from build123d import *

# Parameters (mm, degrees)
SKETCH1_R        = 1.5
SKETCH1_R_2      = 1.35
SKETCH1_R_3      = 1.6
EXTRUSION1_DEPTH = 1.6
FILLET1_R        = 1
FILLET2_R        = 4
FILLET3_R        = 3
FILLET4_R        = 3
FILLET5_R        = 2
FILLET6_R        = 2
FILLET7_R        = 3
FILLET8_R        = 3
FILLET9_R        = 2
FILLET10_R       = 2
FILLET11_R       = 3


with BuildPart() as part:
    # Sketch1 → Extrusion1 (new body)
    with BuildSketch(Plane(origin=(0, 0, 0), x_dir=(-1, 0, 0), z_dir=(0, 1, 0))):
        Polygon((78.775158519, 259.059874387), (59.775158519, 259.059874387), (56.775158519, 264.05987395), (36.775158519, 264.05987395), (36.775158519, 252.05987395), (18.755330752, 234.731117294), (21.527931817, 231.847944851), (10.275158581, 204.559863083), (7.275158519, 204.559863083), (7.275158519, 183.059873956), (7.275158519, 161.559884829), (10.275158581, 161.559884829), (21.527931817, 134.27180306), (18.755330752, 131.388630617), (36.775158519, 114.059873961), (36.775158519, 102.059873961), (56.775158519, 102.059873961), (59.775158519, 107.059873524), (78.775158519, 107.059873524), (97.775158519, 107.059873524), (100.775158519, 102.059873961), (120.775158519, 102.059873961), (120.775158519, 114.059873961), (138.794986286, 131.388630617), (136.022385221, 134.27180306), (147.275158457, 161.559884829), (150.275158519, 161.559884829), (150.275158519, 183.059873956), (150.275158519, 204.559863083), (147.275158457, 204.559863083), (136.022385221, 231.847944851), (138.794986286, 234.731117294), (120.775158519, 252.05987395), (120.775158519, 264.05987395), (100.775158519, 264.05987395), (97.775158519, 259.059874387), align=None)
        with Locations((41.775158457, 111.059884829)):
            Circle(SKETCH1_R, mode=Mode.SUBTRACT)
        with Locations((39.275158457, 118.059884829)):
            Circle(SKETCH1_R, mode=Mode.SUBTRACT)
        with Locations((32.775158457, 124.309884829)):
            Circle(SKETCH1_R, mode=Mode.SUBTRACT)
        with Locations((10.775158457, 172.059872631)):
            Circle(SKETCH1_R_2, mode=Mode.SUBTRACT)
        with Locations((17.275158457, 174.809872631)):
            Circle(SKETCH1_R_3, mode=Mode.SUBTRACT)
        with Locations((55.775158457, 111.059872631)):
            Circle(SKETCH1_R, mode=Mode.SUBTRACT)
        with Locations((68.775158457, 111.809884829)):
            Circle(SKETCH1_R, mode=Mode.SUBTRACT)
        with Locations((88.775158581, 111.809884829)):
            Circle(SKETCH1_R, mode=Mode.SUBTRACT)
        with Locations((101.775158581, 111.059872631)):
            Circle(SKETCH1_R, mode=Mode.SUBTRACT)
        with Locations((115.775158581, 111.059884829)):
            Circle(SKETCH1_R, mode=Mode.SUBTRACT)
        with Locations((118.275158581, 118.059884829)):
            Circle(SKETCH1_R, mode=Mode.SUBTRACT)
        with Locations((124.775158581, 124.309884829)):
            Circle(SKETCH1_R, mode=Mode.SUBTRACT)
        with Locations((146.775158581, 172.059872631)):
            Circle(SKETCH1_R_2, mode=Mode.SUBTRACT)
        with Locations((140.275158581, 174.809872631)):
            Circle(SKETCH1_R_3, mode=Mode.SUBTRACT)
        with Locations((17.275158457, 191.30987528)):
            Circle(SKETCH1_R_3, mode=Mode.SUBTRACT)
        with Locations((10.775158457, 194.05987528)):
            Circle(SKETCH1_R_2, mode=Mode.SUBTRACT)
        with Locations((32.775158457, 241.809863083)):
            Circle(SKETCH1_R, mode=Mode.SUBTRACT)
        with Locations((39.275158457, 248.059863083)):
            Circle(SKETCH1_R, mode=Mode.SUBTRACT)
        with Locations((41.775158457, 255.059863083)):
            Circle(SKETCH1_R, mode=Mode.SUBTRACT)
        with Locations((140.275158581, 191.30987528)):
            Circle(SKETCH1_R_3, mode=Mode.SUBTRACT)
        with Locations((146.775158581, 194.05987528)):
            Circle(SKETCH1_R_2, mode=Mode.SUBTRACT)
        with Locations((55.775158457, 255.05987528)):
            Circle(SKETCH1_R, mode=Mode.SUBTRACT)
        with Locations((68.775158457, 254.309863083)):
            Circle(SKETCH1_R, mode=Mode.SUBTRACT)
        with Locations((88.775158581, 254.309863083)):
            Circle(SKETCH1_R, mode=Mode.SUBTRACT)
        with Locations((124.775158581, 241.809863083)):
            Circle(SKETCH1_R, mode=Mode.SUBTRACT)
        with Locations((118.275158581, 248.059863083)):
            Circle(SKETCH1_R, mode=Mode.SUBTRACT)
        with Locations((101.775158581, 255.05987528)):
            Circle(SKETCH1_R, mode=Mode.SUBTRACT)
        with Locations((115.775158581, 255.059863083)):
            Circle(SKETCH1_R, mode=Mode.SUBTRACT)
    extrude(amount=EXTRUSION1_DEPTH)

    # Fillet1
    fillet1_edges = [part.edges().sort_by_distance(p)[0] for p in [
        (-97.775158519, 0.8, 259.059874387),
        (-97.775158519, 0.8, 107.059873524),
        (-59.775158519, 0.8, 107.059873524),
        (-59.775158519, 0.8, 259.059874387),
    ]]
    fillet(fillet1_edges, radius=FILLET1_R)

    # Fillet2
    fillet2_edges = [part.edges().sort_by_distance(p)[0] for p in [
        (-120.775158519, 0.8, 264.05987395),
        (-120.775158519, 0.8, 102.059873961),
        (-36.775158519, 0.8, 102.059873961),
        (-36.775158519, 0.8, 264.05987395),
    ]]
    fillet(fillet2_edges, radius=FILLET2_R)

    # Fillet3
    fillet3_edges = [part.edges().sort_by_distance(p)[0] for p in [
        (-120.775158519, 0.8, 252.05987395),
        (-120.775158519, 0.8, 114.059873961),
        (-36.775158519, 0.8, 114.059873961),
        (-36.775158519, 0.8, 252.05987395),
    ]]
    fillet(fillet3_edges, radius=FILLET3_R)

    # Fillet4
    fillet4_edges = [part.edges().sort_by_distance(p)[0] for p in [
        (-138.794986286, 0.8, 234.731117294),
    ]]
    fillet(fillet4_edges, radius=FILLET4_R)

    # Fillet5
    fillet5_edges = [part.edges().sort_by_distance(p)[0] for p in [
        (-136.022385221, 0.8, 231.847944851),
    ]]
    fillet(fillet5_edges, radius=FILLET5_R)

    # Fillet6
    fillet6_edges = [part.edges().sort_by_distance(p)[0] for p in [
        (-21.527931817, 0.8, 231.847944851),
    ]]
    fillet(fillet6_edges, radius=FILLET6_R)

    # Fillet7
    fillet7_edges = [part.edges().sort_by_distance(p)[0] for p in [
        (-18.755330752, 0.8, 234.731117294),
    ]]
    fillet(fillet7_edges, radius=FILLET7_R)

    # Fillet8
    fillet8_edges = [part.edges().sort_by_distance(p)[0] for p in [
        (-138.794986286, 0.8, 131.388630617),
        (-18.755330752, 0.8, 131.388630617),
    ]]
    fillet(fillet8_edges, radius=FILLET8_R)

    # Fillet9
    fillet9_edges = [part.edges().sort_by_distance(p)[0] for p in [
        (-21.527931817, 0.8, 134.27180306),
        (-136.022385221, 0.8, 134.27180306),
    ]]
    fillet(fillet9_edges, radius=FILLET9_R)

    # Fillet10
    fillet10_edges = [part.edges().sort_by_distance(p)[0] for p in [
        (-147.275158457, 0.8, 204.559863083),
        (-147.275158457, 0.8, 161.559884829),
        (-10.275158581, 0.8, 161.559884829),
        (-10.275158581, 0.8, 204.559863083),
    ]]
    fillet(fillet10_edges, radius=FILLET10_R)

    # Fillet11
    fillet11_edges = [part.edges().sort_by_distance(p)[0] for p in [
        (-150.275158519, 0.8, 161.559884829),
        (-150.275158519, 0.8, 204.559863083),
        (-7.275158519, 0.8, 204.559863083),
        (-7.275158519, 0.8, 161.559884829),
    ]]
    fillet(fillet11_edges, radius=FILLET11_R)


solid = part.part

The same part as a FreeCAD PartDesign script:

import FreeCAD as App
import Part
import Sketcher
Q = App.Units.Quantity


def edges_at(feature, points):
    """Names of the edges that pass closest to the given points."""
    edges = feature.Shape.Edges
    near = lambda p: min(range(len(edges)), key=lambda i: edges[i].distToShape(Part.Vertex(*p))[0])
    return sorted({f"Edge{near(p) + 1}" for p in points})

doc = App.newDocument("Part")
body = doc.addObject("PartDesign::Body", "Body")

# Sketch on XZ plane
sketch1 = body.newObject("Sketcher::SketchObject", "Sketch")
sketch1.AttachmentSupport = (doc.getObject("XZ_Plane"), [""])
sketch1.MapMode = "FlatFace"
sketch1.addGeometry([
    Part.LineSegment(App.Vector(-59.8, 259.1, 0), App.Vector(-56.8, 264.1, 0)),  # 0
    Part.LineSegment(App.Vector(-56.8, 264.1, 0), App.Vector(-36.8, 264.1, 0)),  # 1
    Part.LineSegment(App.Vector(-36.8, 264.1, 0), App.Vector(-36.8, 252.1, 0)),  # 2
    Part.LineSegment(App.Vector(-36.8, 252.1, 0), App.Vector(-18.8, 234.7, 0)),  # 3
    Part.LineSegment(App.Vector(-18.8, 234.7, 0), App.Vector(-21.5, 231.8, 0)),  # 4
    Part.LineSegment(App.Vector(-21.5, 231.8, 0), App.Vector(-10.3, 204.6, 0)),  # 5
    Part.LineSegment(App.Vector(-10.3, 204.6, 0), App.Vector(-7.3, 204.6, 0)),  # 6
    Part.LineSegment(App.Vector(-7.3, 204.6, 0), App.Vector(-7.3, 161.6, 0)),  # 7
    Part.LineSegment(App.Vector(-7.3, 161.6, 0), App.Vector(-10.3, 161.6, 0)),  # 8
    Part.LineSegment(App.Vector(-10.3, 161.6, 0), App.Vector(-21.5, 134.3, 0)),  # 9
    Part.LineSegment(App.Vector(-21.5, 134.3, 0), App.Vector(-18.8, 131.4, 0)),  # 10
    Part.LineSegment(App.Vector(-18.8, 131.4, 0), App.Vector(-36.8, 114.1, 0)),  # 11
    Part.LineSegment(App.Vector(-36.8, 114.1, 0), App.Vector(-36.8, 102.1, 0)),  # 12
    Part.LineSegment(App.Vector(-36.8, 102.1, 0), App.Vector(-56.8, 102.1, 0)),  # 13
    Part.LineSegment(App.Vector(-56.8, 102.1, 0), App.Vector(-59.8, 107.1, 0)),  # 14
    Part.LineSegment(App.Vector(-59.8, 107.1, 0), App.Vector(-97.8, 107.1, 0)),  # 15
    Part.LineSegment(App.Vector(-97.8, 107.1, 0), App.Vector(-100.8, 102.1, 0)),  # 16
    Part.LineSegment(App.Vector(-100.8, 102.1, 0), App.Vector(-120.8, 102.1, 0)),  # 17
    Part.LineSegment(App.Vector(-120.8, 102.1, 0), App.Vector(-120.8, 114.1, 0)),  # 18
    Part.LineSegment(App.Vector(-120.8, 114.1, 0), App.Vector(-138.8, 131.4, 0)),  # 19
    Part.LineSegment(App.Vector(-138.8, 131.4, 0), App.Vector(-136, 134.3, 0)),  # 20
    Part.LineSegment(App.Vector(-136, 134.3, 0), App.Vector(-147.3, 161.6, 0)),  # 21
    Part.LineSegment(App.Vector(-147.3, 161.6, 0), App.Vector(-150.3, 161.6, 0)),  # 22
    Part.LineSegment(App.Vector(-150.3, 161.6, 0), App.Vector(-150.3, 204.6, 0)),  # 23
    Part.LineSegment(App.Vector(-150.3, 204.6, 0), App.Vector(-147.3, 204.6, 0)),  # 24
    Part.LineSegment(App.Vector(-147.3, 204.6, 0), App.Vector(-136, 231.8, 0)),  # 25
    Part.LineSegment(App.Vector(-136, 231.8, 0), App.Vector(-138.8, 234.7, 0)),  # 26
    Part.LineSegment(App.Vector(-138.8, 234.7, 0), App.Vector(-120.8, 252.1, 0)),  # 27
    Part.LineSegment(App.Vector(-120.8, 252.1, 0), App.Vector(-120.8, 264.1, 0)),  # 28
    Part.LineSegment(App.Vector(-120.8, 264.1, 0), App.Vector(-100.8, 264.1, 0)),  # 29
    Part.LineSegment(App.Vector(-100.8, 264.1, 0), App.Vector(-97.8, 259.1, 0)),  # 30
    Part.LineSegment(App.Vector(-97.8, 259.1, 0), App.Vector(-59.8, 259.1, 0)),  # 31
    Part.Circle(App.Vector(-41.8, 111.1, 0), App.Vector(0, 0, 1), 1.5),  # 32
    Part.Circle(App.Vector(-39.3, 118.1, 0), App.Vector(0, 0, 1), 1.5),  # 33
    Part.Circle(App.Vector(-32.8, 124.3, 0), App.Vector(0, 0, 1), 1.5),  # 34
    Part.Circle(App.Vector(-55.8, 111.1, 0), App.Vector(0, 0, 1), 1.5),  # 35
    Part.Circle(App.Vector(-68.8, 111.8, 0), App.Vector(0, 0, 1), 1.5),  # 36
    Part.Circle(App.Vector(-10.8, 172.1, 0), App.Vector(0, 0, 1), 1.4),  # 37
    Part.Circle(App.Vector(-17.3, 174.8, 0), App.Vector(0, 0, 1), 1.6),  # 38
    Part.Circle(App.Vector(-88.8, 111.8, 0), App.Vector(0, 0, 1), 1.5),  # 39
    Part.Circle(App.Vector(-101.8, 111.1, 0), App.Vector(0, 0, 1), 1.5),  # 40
    Part.Circle(App.Vector(-115.8, 111.1, 0), App.Vector(0, 0, 1), 1.5),  # 41
    Part.Circle(App.Vector(-118.3, 118.1, 0), App.Vector(0, 0, 1), 1.5),  # 42
    Part.Circle(App.Vector(-124.8, 124.3, 0), App.Vector(0, 0, 1), 1.5),  # 43
    Part.Circle(App.Vector(-146.8, 172.1, 0), App.Vector(0, 0, 1), 1.4),  # 44
    Part.Circle(App.Vector(-140.3, 174.8, 0), App.Vector(0, 0, 1), 1.6),  # 45
    Part.Circle(App.Vector(-17.3, 191.3, 0), App.Vector(0, 0, 1), 1.6),  # 46
    Part.Circle(App.Vector(-10.8, 194.1, 0), App.Vector(0, 0, 1), 1.4),  # 47
    Part.Circle(App.Vector(-32.8, 241.8, 0), App.Vector(0, 0, 1), 1.5),  # 48
    Part.Circle(App.Vector(-39.3, 248.1, 0), App.Vector(0, 0, 1), 1.5),  # 49
    Part.Circle(App.Vector(-41.8, 255.1, 0), App.Vector(0, 0, 1), 1.5),  # 50
    Part.Circle(App.Vector(-55.8, 255.1, 0), App.Vector(0, 0, 1), 1.5),  # 51
    Part.Circle(App.Vector(-68.8, 254.3, 0), App.Vector(0, 0, 1), 1.5),  # 52
    Part.Circle(App.Vector(-140.3, 191.3, 0), App.Vector(0, 0, 1), 1.6),  # 53
    Part.Circle(App.Vector(-146.8, 194.1, 0), App.Vector(0, 0, 1), 1.4),  # 54
    Part.Circle(App.Vector(-88.8, 254.3, 0), App.Vector(0, 0, 1), 1.5),  # 55
    Part.Circle(App.Vector(-101.8, 255.1, 0), App.Vector(0, 0, 1), 1.5),  # 56
    Part.Circle(App.Vector(-124.8, 241.8, 0), App.Vector(0, 0, 1), 1.5),  # 57
    Part.Circle(App.Vector(-118.3, 248.1, 0), App.Vector(0, 0, 1), 1.5),  # 58
    Part.Circle(App.Vector(-115.8, 255.1, 0), App.Vector(0, 0, 1), 1.5),  # 59
], False)
sketch1.addConstraint([
    Sketcher.Constraint("Coincident", 0, 2, 1, 1),
    Sketcher.Constraint("Coincident", 1, 2, 2, 1),
    Sketcher.Constraint("Coincident", 2, 2, 3, 1),
    Sketcher.Constraint("Coincident", 3, 2, 4, 1),
    Sketcher.Constraint("Coincident", 4, 2, 5, 1),
    Sketcher.Constraint("Coincident", 5, 2, 6, 1),
    Sketcher.Constraint("Coincident", 6, 2, 7, 1),
    Sketcher.Constraint("Coincident", 7, 2, 8, 1),
    Sketcher.Constraint("Coincident", 8, 2, 9, 1),
    Sketcher.Constraint("Coincident", 9, 2, 10, 1),
    Sketcher.Constraint("Coincident", 10, 2, 11, 1),
    Sketcher.Constraint("Coincident", 11, 2, 12, 1),
    Sketcher.Constraint("Coincident", 12, 2, 13, 1),
    Sketcher.Constraint("Coincident", 13, 2, 14, 1),
    Sketcher.Constraint("Coincident", 14, 2, 15, 1),
    Sketcher.Constraint("Coincident", 15, 2, 16, 1),
    Sketcher.Constraint("Coincident", 16, 2, 17, 1),
    Sketcher.Constraint("Coincident", 17, 2, 18, 1),
    Sketcher.Constraint("Coincident", 18, 2, 19, 1),
    Sketcher.Constraint("Coincident", 19, 2, 20, 1),
    Sketcher.Constraint("Coincident", 20, 2, 21, 1),
    Sketcher.Constraint("Coincident", 21, 2, 22, 1),
    Sketcher.Constraint("Coincident", 22, 2, 23, 1),
    Sketcher.Constraint("Coincident", 23, 2, 24, 1),
    Sketcher.Constraint("Coincident", 24, 2, 25, 1),
    Sketcher.Constraint("Coincident", 25, 2, 26, 1),
    Sketcher.Constraint("Coincident", 26, 2, 27, 1),
    Sketcher.Constraint("Coincident", 27, 2, 28, 1),
    Sketcher.Constraint("Coincident", 28, 2, 29, 1),
    Sketcher.Constraint("Coincident", 29, 2, 30, 1),
    Sketcher.Constraint("Coincident", 30, 2, 31, 1),
    Sketcher.Constraint("Coincident", 31, 2, 0, 1),
    Sketcher.Constraint("Horizontal", 1),
    Sketcher.Constraint("Vertical", 2),
    Sketcher.Constraint("Horizontal", 6),
    Sketcher.Constraint("Vertical", 7),
    Sketcher.Constraint("Horizontal", 8),
    Sketcher.Constraint("Vertical", 12),
    Sketcher.Constraint("Horizontal", 13),
    Sketcher.Constraint("Horizontal", 15),
    Sketcher.Constraint("Horizontal", 17),
    Sketcher.Constraint("Vertical", 18),
    Sketcher.Constraint("Horizontal", 22),
    Sketcher.Constraint("Vertical", 23),
    Sketcher.Constraint("Horizontal", 24),
    Sketcher.Constraint("Vertical", 28),
    Sketcher.Constraint("Horizontal", 29),
    Sketcher.Constraint("Horizontal", 31),
    Sketcher.Constraint("Equal", 32, 33),
    Sketcher.Constraint("Equal", 33, 34),
    Sketcher.Constraint("Equal", 34, 35),
    Sketcher.Constraint("Equal", 35, 36),
    Sketcher.Constraint("Equal", 36, 39),
    Sketcher.Constraint("Equal", 39, 40),
    Sketcher.Constraint("Equal", 40, 41),
    Sketcher.Constraint("Equal", 41, 42),
    Sketcher.Constraint("Equal", 42, 43),
    Sketcher.Constraint("Equal", 37, 44),
    Sketcher.Constraint("Equal", 38, 45),
    Sketcher.Constraint("Equal", 45, 46),
    Sketcher.Constraint("Equal", 44, 47),
    Sketcher.Constraint("Equal", 43, 48),
    Sketcher.Constraint("Equal", 48, 49),
    Sketcher.Constraint("Equal", 49, 50),
    Sketcher.Constraint("Equal", 50, 51),
    Sketcher.Constraint("Equal", 51, 52),
    Sketcher.Constraint("Equal", 46, 53),
    Sketcher.Constraint("Equal", 47, 54),
    Sketcher.Constraint("Equal", 52, 55),
    Sketcher.Constraint("Equal", 55, 56),
    Sketcher.Constraint("Equal", 56, 57),
    Sketcher.Constraint("Equal", 57, 58),
    Sketcher.Constraint("Equal", 58, 59),
    Sketcher.Constraint("Perpendicular", 3, 4),
    Sketcher.Constraint("Perpendicular", 10, 11),
    Sketcher.Constraint("Parallel", 0, 16),
    Sketcher.Constraint("Perpendicular", 4, 19),
    Sketcher.Constraint("Perpendicular", 19, 20),
    Sketcher.Constraint("Parallel", 5, 21),
    Sketcher.Constraint("Parallel", 9, 25),
    Sketcher.Constraint("Perpendicular", 11, 26),
    Sketcher.Constraint("Perpendicular", 26, 27),
    Sketcher.Constraint("Parallel", 14, 30),
    Sketcher.Constraint("Horizontal", 36, 3, 39, 3),
    Sketcher.Constraint("Horizontal", 35, 3, 40, 3),
    Sketcher.Constraint("Horizontal", 32, 3, 41, 3),
    Sketcher.Constraint("Horizontal", 33, 3, 42, 3),
    Sketcher.Constraint("Horizontal", 34, 3, 43, 3),
    Sketcher.Constraint("Horizontal", 37, 3, 44, 3),
    Sketcher.Constraint("Horizontal", 38, 3, 45, 3),
    Sketcher.Constraint("Horizontal", 46, 3, 53, 3),
    Sketcher.Constraint("Horizontal", 47, 3, 54, 3),
    Sketcher.Constraint("Horizontal", 52, 3, 55, 3),
    Sketcher.Constraint("Horizontal", 51, 3, 56, 3),
    Sketcher.Constraint("Horizontal", 48, 3, 57, 3),
    Sketcher.Constraint("Horizontal", 49, 3, 58, 3),
    Sketcher.Constraint("Horizontal", 50, 3, 59, 3),
    Sketcher.Constraint("Horizontal", 13, 2, 16, 2),
    Sketcher.Constraint("Horizontal", 11, 2, 18, 2),
    Sketcher.Constraint("Horizontal", 10, 2, 19, 2),
    Sketcher.Constraint("Horizontal", 9, 2, 20, 2),
    Sketcher.Constraint("Horizontal", 8, 2, 21, 2),
    Sketcher.Constraint("Horizontal", 6, 2, 23, 2),
    Sketcher.Constraint("Horizontal", 4, 2, 25, 2),
    Sketcher.Constraint("Horizontal", 3, 2, 26, 2),
    Sketcher.Constraint("Horizontal", 2, 2, 27, 2),
    Sketcher.Constraint("Horizontal", 1, 2, 28, 2),
    Sketcher.Constraint("Vertical", 38, 3, 46, 3),
    Sketcher.Constraint("Vertical", 37, 3, 47, 3),
    Sketcher.Constraint("Vertical", 34, 3, 48, 3),
    Sketcher.Constraint("Vertical", 33, 3, 49, 3),
    Sketcher.Constraint("Vertical", 32, 3, 50, 3),
    Sketcher.Constraint("Vertical", 35, 3, 51, 3),
    Sketcher.Constraint("Vertical", 36, 3, 52, 3),
    Sketcher.Constraint("Vertical", 45, 3, 53, 3),
    Sketcher.Constraint("Vertical", 44, 3, 54, 3),
    Sketcher.Constraint("Vertical", 39, 3, 55, 3),
    Sketcher.Constraint("Vertical", 40, 3, 56, 3),
    Sketcher.Constraint("Vertical", 43, 3, 57, 3),
    Sketcher.Constraint("Vertical", 42, 3, 58, 3),
    Sketcher.Constraint("Vertical", 41, 3, 59, 3),
    Sketcher.Constraint("Vertical", 5, 2, 8, 2),
    Sketcher.Constraint("Vertical", 4, 2, 9, 2),
    Sketcher.Constraint("Vertical", 3, 2, 10, 2),
    Sketcher.Constraint("Vertical", 2, 2, 11, 2),
    Sketcher.Constraint("Vertical", 0, 2, 13, 2),
    Sketcher.Constraint("Vertical", 21, 2, 24, 2),
    Sketcher.Constraint("Vertical", 20, 2, 25, 2),
    Sketcher.Constraint("Vertical", 19, 2, 26, 2),
    Sketcher.Constraint("Vertical", 16, 2, 29, 2),
    Sketcher.Constraint("Vertical", 15, 2, 30, 2),
    Sketcher.Constraint("Vertical", 14, 2, 31, 2),
    Sketcher.Constraint("Equal", 13, 17),
    Sketcher.Constraint("Equal", 8, 22),
    Sketcher.Constraint("Equal", 2, 12),
    Sketcher.Constraint("Diameter", 32, 3.0),
    Sketcher.Constraint("Diameter", 37, 2.7),
    Sketcher.Constraint("Diameter", 38, 3.2),
    Sketcher.Constraint("DistanceX", 1, 1, 1, 2, 20.0),
    Sketcher.Constraint("DistanceX", 6, 1, 6, 2, 3.0),
    Sketcher.Constraint("DistanceX", 15, 2, 15, 1, 38.0),
    Sketcher.Constraint("DistanceY", 2, 2, 2, 1, 12.0),
    Sketcher.Constraint("Distance", 3, 25.0),
    Sketcher.Constraint("Distance", 4, 4.0),
    Sketcher.Constraint("DistanceY", 32, 3, 33, 3, 7.0),
    Sketcher.Constraint("DistanceX", 32, 3, 34, 3, 9.0),
    Sketcher.Constraint("DistanceX", 35, 3, 32, 3, 14.0),
    Sketcher.Constraint("DistanceX", 36, 3, 35, 3, 13.0),
    Sketcher.Constraint("DistanceX", 34, 3, 37, 3, 22.0),
    Sketcher.Constraint("DistanceY", 35, 3, 37, 3, 61.0),
    Sketcher.Constraint("DistanceX", 33, 3, 38, 3, 22.0),
    Sketcher.Constraint("DistanceX", 39, 3, 36, 3, 20.0),
    Sketcher.Constraint("DistanceX", 40, 3, 39, 3, 13.0),
    Sketcher.Constraint("DistanceX", 41, 3, 40, 3, 14.0),
    Sketcher.Constraint("DistanceX", 43, 3, 41, 3, 9.0),
    Sketcher.Constraint("DistanceX", 44, 3, 43, 3, 22.0),
    Sketcher.Constraint("DistanceX", 45, 3, 42, 3, 22.0),
    Sketcher.Constraint("DistanceY", 49, 3, 50, 3, 7.0),
    Sketcher.Constraint("DistanceY", 47, 3, 51, 3, 61.0),
    Sketcher.Constraint("DistanceX", 0, 2, 51, 3, 1.0),
    Sketcher.Constraint("DistanceY", 51, 3, 0, 2, 8.999999),
    Sketcher.Constraint("DistanceX", 46, 3, 5, 2, 7.0),
    Sketcher.Constraint("DistanceY", 35, 3, 11, 2, 3.000001),
    Sketcher.Constraint("DistanceX", 14, 2, 35, 3, 4.0),
    Sketcher.Constraint("DistanceY", 14, 2, 35, 3, 3.999999),
    Sketcher.Constraint("DistanceX", 21, 2, 45, 3, 7.0),
    Sketcher.Constraint("Angle", 3, Q("-43.88 deg")),
    Sketcher.Constraint("DistanceX", 32, 3, 33, 3, 2.5),
    Sketcher.Constraint("DistanceY", 36, 3, 34, 3, 12.5),
    Sketcher.Constraint("DistanceY", 48, 3, 52, 3, 12.5),
    Sketcher.Constraint("DistanceY", 33, 3, 34, 3, 6.25),
    Sketcher.Constraint("DistanceY", 37, 3, 38, 3, 2.75),
    Sketcher.Constraint("DistanceY", 46, 3, 47, 3, 2.75),
    Sketcher.Constraint("DistanceY", 48, 3, 49, 3, 6.25),
    Sketcher.Constraint("DistanceY", 7, 2, 7, 1, 42.999978),
    Sketcher.Constraint("DistanceX", 32, 3, -1, 1, 41.775158),
    Sketcher.Constraint("DistanceY", -1, 1, 10, 2, 131.388631),
    Sketcher.Constraint("DistanceY", 34, 3, 46, 3, 66.99999),
    Sketcher.Constraint("DistanceY", 38, 3, 48, 3, 66.99999),
    Sketcher.Constraint("DistanceY", 34, 3, 48, 3, 117.499978),
])
pad1 = body.newObject("PartDesign::Pad", "Pad")
pad1.Profile = sketch1
pad1.Length = 1.6
pad1.Reversed = True
doc.recompute()

fillet = body.newObject("PartDesign::Fillet", "Fillet")
fillet.Base = (pad1, edges_at(pad1, [
    (-97.775, 0.8, 259.06),
    (-97.775, 0.8, 107.06),
    (-59.775, 0.8, 107.06),
    (-59.775, 0.8, 259.06),
]))
fillet.Radius = 1
doc.recompute()

fillet2 = body.newObject("PartDesign::Fillet", "Fillet001")
fillet2.Base = (fillet, edges_at(fillet, [
    (-120.775, 0.8, 264.06),
    (-120.775, 0.8, 102.06),
    (-36.775, 0.8, 102.06),
    (-36.775, 0.8, 264.06),
]))
fillet2.Radius = 4
doc.recompute()

fillet3 = body.newObject("PartDesign::Fillet", "Fillet002")
fillet3.Base = (fillet2, edges_at(fillet2, [
    (-120.775, 0.8, 252.06),
    (-120.775, 0.8, 114.06),
    (-36.775, 0.8, 114.06),
    (-36.775, 0.8, 252.06),
]))
fillet3.Radius = 3
doc.recompute()

fillet4 = body.newObject("PartDesign::Fillet", "Fillet003")
fillet4.Base = (fillet3, edges_at(fillet3, [(-138.795, 0.8, 234.731)]))
fillet4.Radius = 3
doc.recompute()

fillet5 = body.newObject("PartDesign::Fillet", "Fillet004")
fillet5.Base = (fillet4, edges_at(fillet4, [(-136.022, 0.8, 231.848)]))
fillet5.Radius = 2
doc.recompute()

fillet6 = body.newObject("PartDesign::Fillet", "Fillet005")
fillet6.Base = (fillet5, edges_at(fillet5, [(-21.528, 0.8, 231.848)]))
fillet6.Radius = 2
doc.recompute()

fillet7 = body.newObject("PartDesign::Fillet", "Fillet006")
fillet7.Base = (fillet6, edges_at(fillet6, [(-18.755, 0.8, 234.731)]))
fillet7.Radius = 3
doc.recompute()

fillet8 = body.newObject("PartDesign::Fillet", "Fillet007")
fillet8.Base = (fillet7, edges_at(fillet7, [(-138.795, 0.8, 131.389), (-18.755, 0.8, 131.389)]))
fillet8.Radius = 3
doc.recompute()

fillet9 = body.newObject("PartDesign::Fillet", "Fillet008")
fillet9.Base = (fillet8, edges_at(fillet8, [(-21.528, 0.8, 134.272), (-136.022, 0.8, 134.272)]))
fillet9.Radius = 2
doc.recompute()

fillet10 = body.newObject("PartDesign::Fillet", "Fillet009")
fillet10.Base = (fillet9, edges_at(fillet9, [
    (-147.275, 0.8, 204.56),
    (-147.275, 0.8, 161.56),
    (-10.275, 0.8, 161.56),
    (-10.275, 0.8, 204.56),
]))
fillet10.Radius = 2
doc.recompute()

fillet11 = body.newObject("PartDesign::Fillet", "Fillet010")
fillet11.Base = (fillet10, edges_at(fillet10, [
    (-150.275, 0.8, 161.56),
    (-150.275, 0.8, 204.56),
    (-7.275, 0.8, 204.56),
    (-7.275, 0.8, 161.56),
]))
fillet11.Radius = 3

doc.recompute()
